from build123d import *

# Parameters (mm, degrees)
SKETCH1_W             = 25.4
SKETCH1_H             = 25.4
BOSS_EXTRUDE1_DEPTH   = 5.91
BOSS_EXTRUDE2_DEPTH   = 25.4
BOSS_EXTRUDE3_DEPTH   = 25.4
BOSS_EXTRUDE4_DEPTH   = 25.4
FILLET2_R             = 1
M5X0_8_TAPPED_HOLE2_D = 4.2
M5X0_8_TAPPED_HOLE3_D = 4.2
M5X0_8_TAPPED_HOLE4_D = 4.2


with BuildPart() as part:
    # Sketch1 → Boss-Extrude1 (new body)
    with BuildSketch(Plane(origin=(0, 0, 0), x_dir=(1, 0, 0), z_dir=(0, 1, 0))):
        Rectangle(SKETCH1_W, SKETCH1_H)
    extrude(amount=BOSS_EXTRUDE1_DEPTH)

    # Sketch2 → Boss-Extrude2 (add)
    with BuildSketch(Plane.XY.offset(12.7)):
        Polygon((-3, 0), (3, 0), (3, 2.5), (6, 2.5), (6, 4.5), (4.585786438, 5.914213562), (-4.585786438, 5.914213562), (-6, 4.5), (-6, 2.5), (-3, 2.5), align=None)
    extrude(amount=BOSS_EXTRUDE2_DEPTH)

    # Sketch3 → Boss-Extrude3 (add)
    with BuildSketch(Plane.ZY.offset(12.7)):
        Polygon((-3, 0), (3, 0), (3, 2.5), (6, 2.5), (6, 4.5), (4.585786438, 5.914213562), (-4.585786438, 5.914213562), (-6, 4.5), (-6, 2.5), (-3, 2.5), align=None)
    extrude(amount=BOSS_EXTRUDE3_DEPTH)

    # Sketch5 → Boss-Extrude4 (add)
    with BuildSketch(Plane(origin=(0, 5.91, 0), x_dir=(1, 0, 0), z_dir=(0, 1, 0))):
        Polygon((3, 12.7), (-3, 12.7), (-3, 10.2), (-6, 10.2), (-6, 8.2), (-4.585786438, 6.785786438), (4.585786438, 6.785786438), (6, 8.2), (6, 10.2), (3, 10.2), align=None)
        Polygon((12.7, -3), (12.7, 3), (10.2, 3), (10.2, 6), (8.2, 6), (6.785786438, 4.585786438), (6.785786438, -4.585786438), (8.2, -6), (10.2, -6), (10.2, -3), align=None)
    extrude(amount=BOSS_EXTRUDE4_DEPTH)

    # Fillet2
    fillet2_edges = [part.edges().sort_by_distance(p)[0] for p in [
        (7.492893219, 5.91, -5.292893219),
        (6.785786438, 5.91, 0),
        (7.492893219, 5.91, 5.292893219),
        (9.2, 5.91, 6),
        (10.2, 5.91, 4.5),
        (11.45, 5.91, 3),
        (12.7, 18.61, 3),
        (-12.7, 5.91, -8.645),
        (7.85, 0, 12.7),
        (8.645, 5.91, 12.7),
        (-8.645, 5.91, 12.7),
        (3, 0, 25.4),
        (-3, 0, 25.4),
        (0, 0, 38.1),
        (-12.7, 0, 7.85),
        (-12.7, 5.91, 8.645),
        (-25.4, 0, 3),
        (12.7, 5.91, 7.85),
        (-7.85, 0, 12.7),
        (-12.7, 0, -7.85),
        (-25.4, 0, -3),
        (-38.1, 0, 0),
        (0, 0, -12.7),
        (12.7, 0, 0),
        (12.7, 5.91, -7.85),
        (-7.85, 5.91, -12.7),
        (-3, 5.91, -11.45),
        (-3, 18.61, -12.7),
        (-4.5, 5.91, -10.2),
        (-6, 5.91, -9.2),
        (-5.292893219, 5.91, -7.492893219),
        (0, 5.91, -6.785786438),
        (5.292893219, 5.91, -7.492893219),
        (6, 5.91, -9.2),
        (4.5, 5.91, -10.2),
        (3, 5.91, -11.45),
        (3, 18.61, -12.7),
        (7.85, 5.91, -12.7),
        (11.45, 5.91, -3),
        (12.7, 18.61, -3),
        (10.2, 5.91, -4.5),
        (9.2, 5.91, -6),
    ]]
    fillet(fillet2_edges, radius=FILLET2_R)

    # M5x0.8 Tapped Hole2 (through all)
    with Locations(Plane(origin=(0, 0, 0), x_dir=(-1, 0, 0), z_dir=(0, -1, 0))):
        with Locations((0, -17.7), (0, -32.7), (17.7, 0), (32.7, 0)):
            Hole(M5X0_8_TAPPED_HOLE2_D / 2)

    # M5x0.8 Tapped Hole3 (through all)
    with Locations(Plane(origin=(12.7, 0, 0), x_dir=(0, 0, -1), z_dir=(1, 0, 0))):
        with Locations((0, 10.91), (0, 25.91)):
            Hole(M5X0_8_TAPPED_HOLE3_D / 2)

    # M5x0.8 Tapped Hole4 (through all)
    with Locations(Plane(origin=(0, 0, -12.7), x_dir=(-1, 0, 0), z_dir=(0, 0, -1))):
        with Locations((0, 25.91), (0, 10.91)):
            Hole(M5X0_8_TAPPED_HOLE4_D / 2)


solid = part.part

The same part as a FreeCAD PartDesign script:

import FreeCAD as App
import Part
import Sketcher

V = App.Vector
Q = App.Units.Quantity


def edges_at(feature, points):
    """Names of the edges that pass closest to the given points."""
    edges = feature.Shape.Edges
    near = lambda p: min(range(len(edges)), key=lambda i: edges[i].distToShape(Part.Vertex(*p))[0])
    return sorted({f"Edge{near(p) + 1}" for p in points})


def add_polygon(sketch, points):
    """Adds a closed chain of lines whose ends are joined by coincident constraints."""
    first, n = sketch.GeometryCount, len(points)
    for a, b in zip(points, points[1:] + points[:1]):
        sketch.addGeometry(Part.LineSegment(App.Vector(*a, 0), App.Vector(*b, 0)), False)
    for i in range(n):
        sketch.addConstraint(Sketcher.Constraint("Coincident", first + i, 2, first + (i + 1) % n, 1))

doc = App.newDocument("Part")
body = doc.addObject("PartDesign::Body", "Body")

# Sketch on XZ plane
sketch1 = body.newObject("Sketcher::SketchObject", "Sketch")
sketch1.AttachmentSupport = (doc.getObject("XZ_Plane"), [""])
sketch1.MapMode = "FlatFace"
add_polygon(sketch1, [(-13, -13), (-13, 13), (13, 13), (13, -13)])  # lines 0-3
sketch1.addConstraint([
    Sketcher.Constraint("Vertical", 0),
    Sketcher.Constraint("Horizontal", 1),
    Sketcher.Constraint("Vertical", 2),
    Sketcher.Constraint("Horizontal", 3),
    Sketcher.Constraint("Symmetric", 0, 2, 2, 2, -1, 1),
    Sketcher.Constraint("Equal", 3, 0),
    Sketcher.Constraint("DistanceX", 1, 1, 1, 2, Q("25.4 mm")),
])
pad1 = body.newObject("PartDesign::Pad", "Pad")
pad1.Profile = sketch1
pad1.Length = 5.91
pad1.Reversed = True

# Sketch on XY plane
sketch2 = body.newObject("Sketcher::SketchObject", "Sketch001")
sketch2.AttachmentSupport = (doc.getObject("XY_Plane"), [""])
sketch2.MapMode = "FlatFace"
sketch2.AttachmentOffset = App.Placement(V(0, 0, 12.7), App.Rotation())
add_polygon(sketch2, [(-3, 0), (3, 0), (3, 2.5), (6, 2.5), (6, 4.5), (4.6, 5.9), (-4.6, 5.9), (-6, 4.5), (-6, 2.5), (-3, 2.5)])  # lines 0-9
sketch2.addConstraint([
    Sketcher.Constraint("Horizontal", 0),
    Sketcher.Constraint("Vertical", 1),
    Sketcher.Constraint("Horizontal", 2),
    Sketcher.Constraint("Vertical", 3),
    Sketcher.Constraint("Horizontal", 5),
    Sketcher.Constraint("Vertical", 7),
    Sketcher.Constraint("Horizontal", 8),
    Sketcher.Constraint("Vertical", 9),
    Sketcher.Constraint("Symmetric", 0, 2, 9, 2, -1, 1),
    Sketcher.Constraint("Symmetric", 3, 2, 6, 2, -2),
    Sketcher.Constraint("Perpendicular", 4, 6),
    Sketcher.Constraint("Horizontal", 2, 2, 7, 2),
    Sketcher.Constraint("Equal", 4, 6),
    Sketcher.Constraint("DistanceX", 0, 1, 0, 2, Q("6 mm")),
    Sketcher.Constraint("DistanceX", 2, 1, 2, 2, Q("3 mm")),
    Sketcher.Constraint("DistanceY", 3, 1, 3, 2, Q("2 mm")),
    Sketcher.Constraint("Distance", 4, Q("2 mm")),
    Sketcher.Constraint("DistanceY", 1, 1, 1, 2, Q("2.5 mm")),
])
pad2 = body.newObject("PartDesign::Pad", "Pad001")
pad2.Profile = sketch2
pad2.Length = 25.4

# Sketch on YZ plane
sketch3 = body.newObject("Sketcher::SketchObject", "Sketch002")
sketch3.AttachmentSupport = (doc.getObject("YZ_Plane"), [""])
sketch3.MapMode = "FlatFace"
sketch3.AttachmentOffset = App.Placement(V(0, 0, -12.7), App.Rotation())
add_polygon(sketch3, [(0, -3), (0, 3), (2.5, 3), (2.5, 6), (4.5, 6), (5.9, 4.6), (5.9, -4.6), (4.5, -6), (2.5, -6), (2.5, -3)])  # lines 0-9
sketch3.addConstraint([
    Sketcher.Constraint("Vertical", 0),
    Sketcher.Constraint("Horizontal", 1),
    Sketcher.Constraint("Vertical", 2),
    Sketcher.Constraint("Horizontal", 3),
    Sketcher.Constraint("Vertical", 5),
    Sketcher.Constraint("Horizontal", 7),
    Sketcher.Constraint("Vertical", 8),
    Sketcher.Constraint("Horizontal", 9),
    Sketcher.Constraint("Symmetric", 0, 2, 9, 2, -1, 1),
    Sketcher.Constraint("Symmetric", 3, 2, 6, 2, -1),
    Sketcher.Constraint("Perpendicular", 4, 6),
    Sketcher.Constraint("Vertical", 2, 2, 7, 2),
    Sketcher.Constraint("Equal", 4, 6),
    Sketcher.Constraint("DistanceX", 3, 1, 3, 2, Q("2 mm")),
    Sketcher.Constraint("DistanceY", 0, 1, 0, 2, Q("6 mm")),
    Sketcher.Constraint("DistanceY", 2, 1, 2, 2, Q("3 mm")),
    Sketcher.Constraint("Distance", 4, Q("2 mm")),
    Sketcher.Constraint("DistanceX", 1, 1, 1, 2, Q("2.5 mm")),
])
pad3 = body.newObject("PartDesign::Pad", "Pad002")
pad3.Profile = sketch3
pad3.Length = 25.4
pad3.Reversed = True

# Sketch on XZ plane
sketch4 = body.newObject("Sketcher::SketchObject", "Sketch003")
sketch4.AttachmentSupport = (doc.getObject("XZ_Plane"), [""])
sketch4.MapMode = "FlatFace"
sketch4.AttachmentOffset = App.Placement(V(0, 0, -5.91), App.Rotation())
add_polygon(sketch4, [(3, -12.7), (-3, -12.7), (-3, -10.2), (-6, -10.2), (-6, -8.2), (-4.6, -6.8), (4.6, -6.8), (6, -8.2), (6, -10.2), (3, -10.2)])  # lines 0-9
add_polygon(sketch4, [(12.7, 3), (12.7, -3), (10.2, -3), (10.2, -6), (8.2, -6), (6.8, -4.6), (6.8, 4.6), (8.2, 6), (10.2, 6), (10.2, 3)])  # lines 10-19
sketch4.addConstraint([
    Sketcher.Constraint("Horizontal", 0),
    Sketcher.Constraint("Vertical", 1),
    Sketcher.Constraint("Horizontal", 2),
    Sketcher.Constraint("Vertical", 3),
    Sketcher.Constraint("Horizontal", 5),
    Sketcher.Constraint("Vertical", 7),
    Sketcher.Constraint("Horizontal", 8),
    Sketcher.Constraint("Vertical", 9),
    Sketcher.Constraint("Vertical", 10),
    Sketcher.Constraint("Horizontal", 11),
    Sketcher.Constraint("Vertical", 12),
    Sketcher.Constraint("Horizontal", 13),
    Sketcher.Constraint("Vertical", 15),
    Sketcher.Constraint("Horizontal", 17),
    Sketcher.Constraint("Vertical", 18),
    Sketcher.Constraint("Horizontal", 19),
    Sketcher.Constraint("Symmetric", 3, 2, 6, 2, -2),
    Sketcher.Constraint("Symmetric", 1, 2, 8, 2, -2),
    Sketcher.Constraint("Symmetric", 13, 2, 16, 2, -1),
    Sketcher.Constraint("Symmetric", 11, 2, 18, 2, -1),
    Sketcher.Constraint("Perpendicular", 4, 6),
    Sketcher.Constraint("Parallel", 6, 14),
    Sketcher.Constraint("Perpendicular", 14, 16),
    Sketcher.Constraint("Equal", 19, 1),
    Sketcher.Constraint("Equal", 17, 3),
    Sketcher.Constraint("Equal", 0, 10),
    Sketcher.Constraint("Equal", 8, 12),
    Sketcher.Constraint("Equal", 5, 15),
    Sketcher.Constraint("Equal", 4, 6),
    Sketcher.Constraint("DistanceX", 0, 2, 0, 1, Q("6 mm")),
    Sketcher.Constraint("DistanceX", 2, 2, 2, 1, Q("3 mm")),
    Sketcher.Constraint("DistanceX", 13, 2, 13, 1, Q("2 mm")),
    Sketcher.Constraint("Distance", 4, Q("2 mm")),
    Sketcher.Constraint("DistanceX", 11, 2, 11, 1, Q("2.5 mm")),
    Sketcher.Constraint("DistanceY", 0, 2, -1, 1, Q("12.7 mm")),
    Sketcher.Constraint("DistanceX", -1, 1, 10, 2, Q("12.7 mm")),
])
pad4 = body.newObject("PartDesign::Pad", "Pad003")
pad4.Profile = sketch4
pad4.Length = 25.4
pad4.Reversed = True
doc.recompute()

fillet = body.newObject("PartDesign::Fillet", "Fillet")
fillet.Base = (pad4, edges_at(pad4, [
    (7.493, 5.91, -5.293),
    (6.786, 5.91, 0),
    (7.493, 5.91, 5.293),
    (9.2, 5.91, 6),
    (10.2, 5.91, 4.5),
    (11.45, 5.91, 3),
    (12.7, 18.61, 3),
    (-12.7, 5.91, -8.645),
    (7.85, 0, 12.7),
    (8.645, 5.91, 12.7),
    (-8.645, 5.91, 12.7),
    (3, 0, 25.4),
    (-3, 0, 25.4),
    (0, 0, 38.1),
    (-12.7, 0, 7.85),
    (-12.7, 5.91, 8.645),
    (-25.4, 0, 3),
    (12.7, 5.91, 7.85),
    (-7.85, 0, 12.7),
    (-12.7, 0, -7.85),
    (-25.4, 0, -3),
    (-38.1, 0, 0),
    (0, 0, -12.7),
    (12.7, 0, 0),
    (12.7, 5.91, -7.85),
    (-7.85, 5.91, -12.7),
    (-3, 5.91, -11.45),
    (-3, 18.61, -12.7),
    (-4.5, 5.91, -10.2),
    (-6, 5.91, -9.2),
    (-5.293, 5.91, -7.493),
    (0, 5.91, -6.786),
    (5.293, 5.91, -7.493),
    (6, 5.91, -9.2),
    (4.5, 5.91, -10.2),
    (3, 5.91, -11.45),
    (3, 18.61, -12.7),
    (7.85, 5.91, -12.7),
    (11.45, 5.91, -3),
    (12.7, 18.61, -3),
    (10.2, 5.91, -4.5),
    (9.2, 5.91, -6),
]))
fillet.Radius = 1

# Sketch on XZ plane
sketch5 = body.newObject("Sketcher::SketchObject", "Sketch004")
sketch5.AttachmentSupport = (doc.getObject("XZ_Plane"), [""])
sketch5.MapMode = "FlatFace"
sketch5.addGeometry([
    Part.Circle(V(0, 17.7, 0), V(0, 0, 1), 2.1),
    Part.Circle(V(0, 32.7, 0), V(0, 0, 1), 2.1),
    Part.Circle(V(-17.7, 0, 0), V(0, 0, 1), 2.1),
    Part.Circle(V(-32.7, 0, 0), V(0, 0, 1), 2.1),
], False)
sketch5.addConstraint([
    Sketcher.Constraint("Equal", 0, 1),
    Sketcher.Constraint("Equal", 1, 2),
    Sketcher.Constraint("Equal", 2, 3),
    Sketcher.Constraint("PointOnObject", 0, 3, -2),
    Sketcher.Constraint("PointOnObject", 1, 3, -2),
    Sketcher.Constraint("PointOnObject", 2, 3, -1),
    Sketcher.Constraint("PointOnObject", 3, 3, -1),
    Sketcher.Constraint("Diameter", 0, Q("4.2 mm")),
    Sketcher.Constraint("DistanceY", 0, 3, 1, 3, Q("15 mm")),
    Sketcher.Constraint("DistanceX", 3, 3, 2, 3, Q("15 mm")),
    Sketcher.Constraint("DistanceY", -1, 1, 0, 3, Q("17.7 mm")),
    Sketcher.Constraint("DistanceX", 2, 3, -1, 1, Q("17.7 mm")),
])
doc.recompute()
hole = body.newObject("PartDesign::Hole", "Hole")
hole.Profile = sketch5
hole.ThreadType = "None"
hole.Diameter = 4.2
hole.DepthType = "ThroughAll"

# Sketch on YZ plane
sketch6 = body.newObject("Sketcher::SketchObject", "Sketch005")
sketch6.AttachmentSupport = (doc.getObject("YZ_Plane"), [""])
sketch6.MapMode = "FlatFace"
sketch6.AttachmentOffset = App.Placement(V(0, 0, 12.7), App.Rotation())
sketch6.addGeometry([
    Part.Circle(V(10.9, 0, 0), V(0, 0, 1), 2.1),
    Part.Circle(V(25.9, 0, 0), V(0, 0, 1), 2.1),
], False)
sketch6.addConstraint([
    Sketcher.Constraint("Equal", 0, 1),
    Sketcher.Constraint("PointOnObject", 0, 3, -1),
    Sketcher.Constraint("PointOnObject", 1, 3, -1),
    Sketcher.Constraint("Diameter", 0, Q("4.2 mm")),
    Sketcher.Constraint("DistanceX", 0, 3, 1, 3, Q("15 mm")),
    Sketcher.Constraint("DistanceX", -1, 1, 0, 3, Q("10.91 mm")),
])
doc.recompute()
hole2 = body.newObject("PartDesign::Hole", "Hole001")
hole2.Profile = sketch6
hole2.ThreadType = "None"
hole2.Diameter = 4.2
hole2.DepthType = "ThroughAll"

# Sketch on XY plane
sketch7 = body.newObject("Sketcher::SketchObject", "Sketch006")
sketch7.AttachmentSupport = (doc.getObject("XY_Plane"), [""])
sketch7.MapMode = "FlatFace"
sketch7.AttachmentOffset = App.Placement(V(0, 0, -12.7), App.Rotation())
sketch7.addGeometry([
    Part.Circle(V(0, 25.9, 0), V(0, 0, 1), 2.1),
    Part.Circle(V(0, 10.9, 0), V(0, 0, 1), 2.1),
], False)
sketch7.addConstraint([
    Sketcher.Constraint("Equal", 0, 1),
    Sketcher.Constraint("PointOnObject", 0, 3, -2),
    Sketcher.Constraint("PointOnObject", 1, 3, -2),
    Sketcher.Constraint("Diameter", 0, Q("4.2 mm")),
    Sketcher.Constraint("DistanceY", 1, 3, 0, 3, Q("15 mm")),
    Sketcher.Constraint("DistanceY", -1, 1, 0, 3, Q("25.91 mm")),
])
doc.recompute()
hole3 = body.newObject("PartDesign::Hole", "Hole002")
hole3.Profile = sketch7
hole3.ThreadType = "None"
hole3.Diameter = 4.2
hole3.DepthType = "ThroughAll"
hole3.Reversed = True

doc.recompute()
